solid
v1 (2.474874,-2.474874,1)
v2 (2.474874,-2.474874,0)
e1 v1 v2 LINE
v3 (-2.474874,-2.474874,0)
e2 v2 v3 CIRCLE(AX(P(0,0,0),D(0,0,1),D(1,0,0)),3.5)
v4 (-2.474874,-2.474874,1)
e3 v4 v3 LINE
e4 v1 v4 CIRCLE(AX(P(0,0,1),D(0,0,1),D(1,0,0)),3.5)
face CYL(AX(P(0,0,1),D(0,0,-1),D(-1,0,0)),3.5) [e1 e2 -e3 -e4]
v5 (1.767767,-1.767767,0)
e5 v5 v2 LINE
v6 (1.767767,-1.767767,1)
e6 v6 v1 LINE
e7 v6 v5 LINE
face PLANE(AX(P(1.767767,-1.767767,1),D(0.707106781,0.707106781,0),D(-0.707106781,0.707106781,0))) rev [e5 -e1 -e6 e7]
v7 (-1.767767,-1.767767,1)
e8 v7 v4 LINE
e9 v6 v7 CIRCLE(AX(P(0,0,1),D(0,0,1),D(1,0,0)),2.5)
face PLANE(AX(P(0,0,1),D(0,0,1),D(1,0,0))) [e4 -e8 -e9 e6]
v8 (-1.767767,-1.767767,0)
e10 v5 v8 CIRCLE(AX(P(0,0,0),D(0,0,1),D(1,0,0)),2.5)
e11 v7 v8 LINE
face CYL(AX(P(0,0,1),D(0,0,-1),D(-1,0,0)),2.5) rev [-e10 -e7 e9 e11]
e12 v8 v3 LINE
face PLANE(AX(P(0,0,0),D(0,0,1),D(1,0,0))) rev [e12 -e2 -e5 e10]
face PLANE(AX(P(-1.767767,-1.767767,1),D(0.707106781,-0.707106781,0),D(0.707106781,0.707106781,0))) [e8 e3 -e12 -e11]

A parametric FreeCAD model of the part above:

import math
import FreeCAD as App
import Part
import Sketcher
from FreeCAD import Vector
Q = App.Units.Quantity

doc = App.newDocument("Part")
body = doc.addObject("PartDesign::Body", "Body")

# Sketch on XY plane
sketch1 = body.newObject("Sketcher::SketchObject", "Sketch")
sketch1.AttachmentSupport = (doc.getObject("XY_Plane"), [""])
sketch1.MapMode = "FlatFace"
sketch1.addGeometry([
    Part.LineSegment(Vector(1.767767, -1.767767, 0), Vector(2.474874, -2.474874, 0)),
    Part.ArcOfCircle(Part.Circle(Vector(0, 0, 0), Vector(0, 0, 1), 3.5), math.radians(-45), math.radians(225)),
    Part.LineSegment(Vector(-2.474874, -2.474874, 0), Vector(-1.767767, -1.767767, 0)),
    Part.ArcOfCircle(Part.Circle(Vector(0, 0, 0), Vector(0, 0, 1), 2.5), math.radians(-45), math.radians(225)),
], False)
sketch1.addConstraint([
    Sketcher.Constraint("Coincident", 0, 2, 1, 1),
    Sketcher.Constraint("Coincident", 1, 2, 2, 1),
    Sketcher.Constraint("Coincident", 2, 2, 3, 2),
    Sketcher.Constraint("Coincident", 3, 1, 0, 1),
    Sketcher.Constraint("Coincident", 1, 3, -1, 1),
    Sketcher.Constraint("Coincident", 3, 3, -1, 1),
    Sketcher.Constraint("Perpendicular", 0, 2),
    Sketcher.Constraint("Horizontal", 0, 2, 1, 2),
    Sketcher.Constraint("Horizontal", 2, 2, 3, 1),
    Sketcher.Constraint("Radius", 1, Q("3.5 mm")),
    Sketcher.Constraint("Radius", 3, Q("2.5 mm")),
    Sketcher.Constraint("DistanceX", 2, 2, 0, 2, Q("4.242641 mm")),
])
pad1 = body.newObject("PartDesign::Pad", "Pad")
pad1.Profile = sketch1
pad1.Length = 1

doc.recompute()
